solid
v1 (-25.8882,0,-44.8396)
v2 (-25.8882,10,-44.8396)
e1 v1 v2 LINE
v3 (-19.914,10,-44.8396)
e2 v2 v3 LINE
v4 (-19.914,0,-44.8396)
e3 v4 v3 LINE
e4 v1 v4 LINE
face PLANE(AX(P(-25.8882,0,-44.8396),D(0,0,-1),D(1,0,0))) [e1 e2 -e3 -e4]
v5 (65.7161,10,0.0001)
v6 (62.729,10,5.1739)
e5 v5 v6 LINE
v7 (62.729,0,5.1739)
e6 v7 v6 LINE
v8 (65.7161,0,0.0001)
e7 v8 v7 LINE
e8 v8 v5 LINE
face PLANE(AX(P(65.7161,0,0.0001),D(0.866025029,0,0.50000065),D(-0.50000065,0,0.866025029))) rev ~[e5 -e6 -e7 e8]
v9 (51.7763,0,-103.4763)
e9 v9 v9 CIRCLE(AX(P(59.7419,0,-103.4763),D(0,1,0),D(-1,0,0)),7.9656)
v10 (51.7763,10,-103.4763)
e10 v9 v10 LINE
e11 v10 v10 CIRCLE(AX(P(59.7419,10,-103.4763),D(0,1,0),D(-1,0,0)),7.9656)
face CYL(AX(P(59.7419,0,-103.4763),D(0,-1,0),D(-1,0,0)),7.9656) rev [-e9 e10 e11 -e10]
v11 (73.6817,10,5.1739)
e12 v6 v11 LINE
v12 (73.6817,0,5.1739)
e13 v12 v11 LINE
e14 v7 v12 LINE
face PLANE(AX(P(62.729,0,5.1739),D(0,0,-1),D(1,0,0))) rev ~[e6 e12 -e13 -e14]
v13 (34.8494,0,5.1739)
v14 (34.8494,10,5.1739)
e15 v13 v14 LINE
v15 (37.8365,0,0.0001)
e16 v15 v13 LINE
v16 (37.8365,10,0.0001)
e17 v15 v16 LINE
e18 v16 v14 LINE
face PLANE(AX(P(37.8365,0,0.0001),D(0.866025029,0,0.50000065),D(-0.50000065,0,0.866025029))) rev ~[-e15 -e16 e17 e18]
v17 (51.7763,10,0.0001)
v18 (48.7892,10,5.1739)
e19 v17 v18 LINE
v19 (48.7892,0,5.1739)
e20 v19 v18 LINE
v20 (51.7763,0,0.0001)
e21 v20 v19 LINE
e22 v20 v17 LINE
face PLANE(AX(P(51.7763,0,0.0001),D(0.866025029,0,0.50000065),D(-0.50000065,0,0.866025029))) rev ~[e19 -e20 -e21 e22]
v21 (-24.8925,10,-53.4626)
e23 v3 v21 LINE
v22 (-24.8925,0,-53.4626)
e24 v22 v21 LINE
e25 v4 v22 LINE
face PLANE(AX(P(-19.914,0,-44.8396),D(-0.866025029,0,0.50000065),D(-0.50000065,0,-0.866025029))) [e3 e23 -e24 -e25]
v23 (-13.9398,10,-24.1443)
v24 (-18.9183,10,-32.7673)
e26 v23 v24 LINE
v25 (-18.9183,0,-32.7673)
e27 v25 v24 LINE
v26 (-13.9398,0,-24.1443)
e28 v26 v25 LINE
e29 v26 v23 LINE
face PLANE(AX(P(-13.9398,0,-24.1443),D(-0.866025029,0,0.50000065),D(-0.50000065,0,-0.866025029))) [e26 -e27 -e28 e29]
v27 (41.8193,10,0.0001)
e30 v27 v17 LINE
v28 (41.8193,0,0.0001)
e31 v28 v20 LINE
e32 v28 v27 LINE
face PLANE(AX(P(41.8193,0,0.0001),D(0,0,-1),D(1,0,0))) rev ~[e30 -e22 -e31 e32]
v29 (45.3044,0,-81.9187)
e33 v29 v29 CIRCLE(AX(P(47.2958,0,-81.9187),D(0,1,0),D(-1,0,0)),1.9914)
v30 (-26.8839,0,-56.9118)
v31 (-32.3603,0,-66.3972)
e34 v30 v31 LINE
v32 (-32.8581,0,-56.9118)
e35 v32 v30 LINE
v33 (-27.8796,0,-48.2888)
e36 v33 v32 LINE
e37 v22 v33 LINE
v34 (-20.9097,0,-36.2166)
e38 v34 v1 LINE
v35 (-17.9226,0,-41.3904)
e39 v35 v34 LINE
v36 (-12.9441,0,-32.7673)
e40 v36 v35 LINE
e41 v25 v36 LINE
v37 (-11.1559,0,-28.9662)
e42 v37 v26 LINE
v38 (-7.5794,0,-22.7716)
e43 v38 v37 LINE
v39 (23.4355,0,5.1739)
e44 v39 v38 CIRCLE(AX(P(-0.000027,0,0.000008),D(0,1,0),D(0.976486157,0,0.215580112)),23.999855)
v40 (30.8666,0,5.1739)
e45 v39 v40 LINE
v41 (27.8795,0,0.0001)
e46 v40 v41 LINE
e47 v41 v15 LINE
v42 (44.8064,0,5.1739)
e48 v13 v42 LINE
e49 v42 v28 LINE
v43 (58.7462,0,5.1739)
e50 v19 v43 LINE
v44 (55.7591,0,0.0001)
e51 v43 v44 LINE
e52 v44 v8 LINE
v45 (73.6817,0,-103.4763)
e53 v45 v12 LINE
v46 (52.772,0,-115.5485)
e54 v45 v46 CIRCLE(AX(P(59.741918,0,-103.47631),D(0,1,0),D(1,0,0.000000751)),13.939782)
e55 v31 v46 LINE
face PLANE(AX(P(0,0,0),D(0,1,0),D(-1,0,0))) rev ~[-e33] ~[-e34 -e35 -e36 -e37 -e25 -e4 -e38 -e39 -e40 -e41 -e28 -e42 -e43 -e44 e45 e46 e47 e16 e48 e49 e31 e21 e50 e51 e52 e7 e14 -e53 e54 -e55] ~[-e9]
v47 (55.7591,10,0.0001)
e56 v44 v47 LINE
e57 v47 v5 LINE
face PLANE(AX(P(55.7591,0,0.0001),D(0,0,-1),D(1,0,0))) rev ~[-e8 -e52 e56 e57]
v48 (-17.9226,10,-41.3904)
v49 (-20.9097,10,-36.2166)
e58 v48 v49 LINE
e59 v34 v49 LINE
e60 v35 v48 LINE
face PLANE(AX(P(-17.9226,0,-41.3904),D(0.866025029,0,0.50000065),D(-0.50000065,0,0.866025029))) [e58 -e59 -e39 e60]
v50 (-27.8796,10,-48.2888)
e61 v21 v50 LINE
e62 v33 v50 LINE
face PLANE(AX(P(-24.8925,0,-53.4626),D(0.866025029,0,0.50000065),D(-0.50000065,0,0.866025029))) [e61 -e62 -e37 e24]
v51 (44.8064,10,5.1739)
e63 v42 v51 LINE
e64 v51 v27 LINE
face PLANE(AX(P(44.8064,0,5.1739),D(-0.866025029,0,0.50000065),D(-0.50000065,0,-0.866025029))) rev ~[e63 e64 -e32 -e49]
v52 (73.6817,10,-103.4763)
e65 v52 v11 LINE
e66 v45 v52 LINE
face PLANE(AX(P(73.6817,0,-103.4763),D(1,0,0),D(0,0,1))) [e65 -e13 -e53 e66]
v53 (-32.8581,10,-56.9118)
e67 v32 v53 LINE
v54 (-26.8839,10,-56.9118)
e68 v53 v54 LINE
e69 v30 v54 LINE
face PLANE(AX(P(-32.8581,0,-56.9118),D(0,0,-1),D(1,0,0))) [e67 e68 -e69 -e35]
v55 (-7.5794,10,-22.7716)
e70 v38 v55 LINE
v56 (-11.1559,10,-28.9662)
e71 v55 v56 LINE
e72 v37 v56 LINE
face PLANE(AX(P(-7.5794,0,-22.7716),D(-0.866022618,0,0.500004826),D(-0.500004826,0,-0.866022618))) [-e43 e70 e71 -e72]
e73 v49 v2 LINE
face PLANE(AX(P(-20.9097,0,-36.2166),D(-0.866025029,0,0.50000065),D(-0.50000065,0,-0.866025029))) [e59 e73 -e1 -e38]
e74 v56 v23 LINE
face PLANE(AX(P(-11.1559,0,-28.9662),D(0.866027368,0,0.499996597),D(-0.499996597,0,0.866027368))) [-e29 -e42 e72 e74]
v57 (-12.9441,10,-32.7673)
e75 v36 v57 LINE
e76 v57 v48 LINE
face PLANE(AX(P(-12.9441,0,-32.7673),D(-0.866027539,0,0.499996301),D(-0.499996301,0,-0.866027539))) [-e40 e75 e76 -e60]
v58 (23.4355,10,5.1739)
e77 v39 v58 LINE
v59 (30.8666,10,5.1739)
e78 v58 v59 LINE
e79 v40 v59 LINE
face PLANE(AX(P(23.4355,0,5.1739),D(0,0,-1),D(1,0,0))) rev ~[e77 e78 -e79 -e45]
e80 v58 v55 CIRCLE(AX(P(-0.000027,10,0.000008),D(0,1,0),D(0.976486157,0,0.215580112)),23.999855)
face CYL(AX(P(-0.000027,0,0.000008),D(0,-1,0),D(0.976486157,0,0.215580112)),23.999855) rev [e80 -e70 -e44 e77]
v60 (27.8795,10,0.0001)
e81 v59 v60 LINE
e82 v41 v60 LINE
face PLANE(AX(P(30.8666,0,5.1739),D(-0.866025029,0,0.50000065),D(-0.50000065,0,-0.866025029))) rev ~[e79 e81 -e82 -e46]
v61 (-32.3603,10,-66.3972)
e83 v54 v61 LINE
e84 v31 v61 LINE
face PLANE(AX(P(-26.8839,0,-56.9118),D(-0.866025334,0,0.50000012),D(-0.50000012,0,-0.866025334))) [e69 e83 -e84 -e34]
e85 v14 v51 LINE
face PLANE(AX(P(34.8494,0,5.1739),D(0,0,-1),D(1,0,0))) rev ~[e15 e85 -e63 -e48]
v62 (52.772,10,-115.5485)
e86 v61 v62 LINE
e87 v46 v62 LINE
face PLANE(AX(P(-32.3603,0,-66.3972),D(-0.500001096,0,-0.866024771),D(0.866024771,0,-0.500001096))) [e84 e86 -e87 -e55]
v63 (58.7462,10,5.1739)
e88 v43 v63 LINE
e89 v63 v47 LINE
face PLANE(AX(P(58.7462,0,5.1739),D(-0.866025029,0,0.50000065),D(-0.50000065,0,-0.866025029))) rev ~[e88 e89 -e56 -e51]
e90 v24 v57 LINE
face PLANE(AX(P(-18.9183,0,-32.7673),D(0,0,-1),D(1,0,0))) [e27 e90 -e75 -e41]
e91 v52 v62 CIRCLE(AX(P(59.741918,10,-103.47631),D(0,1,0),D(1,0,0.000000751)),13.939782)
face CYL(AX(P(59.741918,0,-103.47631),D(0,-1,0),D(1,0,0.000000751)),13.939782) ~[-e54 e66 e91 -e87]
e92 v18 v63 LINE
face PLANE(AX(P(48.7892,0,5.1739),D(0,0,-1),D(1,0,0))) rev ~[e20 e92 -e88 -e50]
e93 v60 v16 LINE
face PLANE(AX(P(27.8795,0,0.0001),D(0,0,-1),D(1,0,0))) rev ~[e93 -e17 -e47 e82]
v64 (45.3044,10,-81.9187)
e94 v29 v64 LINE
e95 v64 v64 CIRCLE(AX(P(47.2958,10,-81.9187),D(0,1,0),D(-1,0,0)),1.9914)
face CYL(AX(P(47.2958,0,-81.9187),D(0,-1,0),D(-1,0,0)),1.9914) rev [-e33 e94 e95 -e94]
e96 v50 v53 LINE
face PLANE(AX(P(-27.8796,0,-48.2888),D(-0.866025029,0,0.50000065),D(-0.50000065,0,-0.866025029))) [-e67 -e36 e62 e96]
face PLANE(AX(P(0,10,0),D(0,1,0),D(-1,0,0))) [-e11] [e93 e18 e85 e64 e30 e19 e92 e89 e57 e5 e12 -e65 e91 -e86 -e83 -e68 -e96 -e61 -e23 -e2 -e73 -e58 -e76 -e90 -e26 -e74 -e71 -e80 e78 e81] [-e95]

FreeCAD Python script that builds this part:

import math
import FreeCAD as App
import Part
import Sketcher
Q = App.Units.Quantity

doc = App.newDocument("Part")
body = doc.addObject("PartDesign::Body", "Body")

sketch1 = body.newObject("Sketcher::SketchObject", "Sketch")
sketch1.AttachmentSupport = (doc.getObject("XZ_Plane"), [""])
sketch1.MapMode = "FlatFace"
sketch1.addGeometry([
    Part.LineSegment(App.Vector(73.7, 5.2, 0), App.Vector(73.7, -103.5, 0)),
    Part.ArcOfCircle(Part.Circle(App.Vector(59.7, -103.5, 0), App.Vector(0, 0, 1), 13.9), math.radians(-120), math.radians(0)),
    Part.LineSegment(App.Vector(52.8, -115.5, 0), App.Vector(-32.4, -66.4, 0)),
    Part.LineSegment(App.Vector(-32.4, -66.4, 0), App.Vector(-26.9, -56.9, 0)),
    Part.LineSegment(App.Vector(-26.9, -56.9, 0), App.Vector(-32.9, -56.9, 0)),
    Part.LineSegment(App.Vector(-32.9, -56.9, 0), App.Vector(-27.9, -48.3, 0)),
    Part.LineSegment(App.Vector(-27.9, -48.3, 0), App.Vector(-24.9, -53.5, 0)),
    Part.LineSegment(App.Vector(-24.9, -53.5, 0), App.Vector(-19.9, -44.8, 0)),
    Part.LineSegment(App.Vector(-19.9, -44.8, 0), App.Vector(-25.9, -44.8, 0)),
    Part.LineSegment(App.Vector(-25.9, -44.8, 0), App.Vector(-20.9, -36.2, 0)),
    Part.LineSegment(App.Vector(-20.9, -36.2, 0), App.Vector(-17.9, -41.4, 0)),
    Part.LineSegment(App.Vector(-17.9, -41.4, 0), App.Vector(-12.9, -32.8, 0)),
    Part.LineSegment(App.Vector(-12.9, -32.8, 0), App.Vector(-18.9, -32.8, 0)),
    Part.LineSegment(App.Vector(-18.9, -32.8, 0), App.Vector(-13.9, -24.1, 0)),
    Part.LineSegment(App.Vector(-13.9, -24.1, 0), App.Vector(-11.2, -29, 0)),
    Part.LineSegment(App.Vector(-11.2, -29, 0), App.Vector(-7.6, -22.8, 0)),
    Part.ArcOfCircle(Part.Circle(App.Vector(0, 0, 0), App.Vector(0, 0, 1), 24), math.radians(-108), math.radians(12)),
    Part.LineSegment(App.Vector(23.4, 5.2, 0), App.Vector(30.9, 5.2, 0)),
    Part.LineSegment(App.Vector(30.9, 5.2, 0), App.Vector(27.9, 0, 0)),
    Part.LineSegment(App.Vector(27.9, 0, 0), App.Vector(37.8, 0, 0)),
    Part.LineSegment(App.Vector(37.8, 0, 0), App.Vector(34.8, 5.2, 0)),
    Part.LineSegment(App.Vector(34.8, 5.2, 0), App.Vector(44.8, 5.2, 0)),
    Part.LineSegment(App.Vector(44.8, 5.2, 0), App.Vector(41.8, 0, 0)),
    Part.LineSegment(App.Vector(41.8, 0, 0), App.Vector(51.8, 0, 0)),
    Part.LineSegment(App.Vector(51.8, 0, 0), App.Vector(48.8, 5.2, 0)),
    Part.LineSegment(App.Vector(48.8, 5.2, 0), App.Vector(58.7, 5.2, 0)),
    Part.LineSegment(App.Vector(58.7, 5.2, 0), App.Vector(55.8, 0, 0)),
    Part.LineSegment(App.Vector(55.8, 0, 0), App.Vector(65.7, 0, 0)),
    Part.LineSegment(App.Vector(65.7, 0, 0), App.Vector(62.7, 5.2, 0)),
    Part.LineSegment(App.Vector(62.7, 5.2, 0), App.Vector(73.7, 5.2, 0)),
    Part.Circle(App.Vector(59.7, -103.5, 0), App.Vector(0, 0, 1), 8),
    Part.Circle(App.Vector(47.3, -81.9, 0), App.Vector(0, 0, 1), 2),
], False)
sketch1.addConstraint([
    Sketcher.Constraint("Tangent", 0, 2, 1, 2),
    Sketcher.Constraint("Tangent", 1, 1, 2, 1),
    Sketcher.Constraint("Coincident", 2, 2, 3, 1),
    Sketcher.Constraint("Coincident", 3, 2, 4, 1),
    Sketcher.Constraint("Coincident", 4, 2, 5, 1),
    Sketcher.Constraint("Coincident", 5, 2, 6, 1),
    Sketcher.Constraint("Coincident", 6, 2, 7, 1),
    Sketcher.Constraint("Coincident", 7, 2, 8, 1),
    Sketcher.Constraint("Coincident", 8, 2, 9, 1),
    Sketcher.Constraint("Coincident", 9, 2, 10, 1),
    Sketcher.Constraint("Coincident", 10, 2, 11, 1),
    Sketcher.Constraint("Coincident", 11, 2, 12, 1),
    Sketcher.Constraint("Coincident", 12, 2, 13, 1),
    Sketcher.Constraint("Coincident", 13, 2, 14, 1),
    Sketcher.Constraint("Coincident", 14, 2, 15, 1),
    Sketcher.Constraint("Coincident", 15, 2, 16, 1),
    Sketcher.Constraint("Coincident", 16, 2, 17, 1),
    Sketcher.Constraint("Coincident", 17, 2, 18, 1),
    Sketcher.Constraint("Coincident", 18, 2, 19, 1),
    Sketcher.Constraint("Coincident", 19, 2, 20, 1),
    Sketcher.Constraint("Coincident", 20, 2, 21, 1),
    Sketcher.Constraint("Coincident", 21, 2, 22, 1),
    Sketcher.Constraint("Coincident", 22, 2, 23, 1),
    Sketcher.Constraint("Coincident", 23, 2, 24, 1),
    Sketcher.Constraint("Coincident", 24, 2, 25, 1),
    Sketcher.Constraint("Coincident", 25, 2, 26, 1),
    Sketcher.Constraint("Coincident", 26, 2, 27, 1),
    Sketcher.Constraint("Coincident", 27, 2, 28, 1),
    Sketcher.Constraint("Coincident", 28, 2, 29, 1),
    Sketcher.Constraint("Coincident", 29, 2, 0, 1),
    Sketcher.Constraint("Vertical", 0),
    Sketcher.Constraint("Horizontal", 4),
    Sketcher.Constraint("Horizontal", 8),
    Sketcher.Constraint("Horizontal", 12),
    Sketcher.Constraint("Horizontal", 17),
    Sketcher.Constraint("Horizontal", 19),
    Sketcher.Constraint("Horizontal", 21),
    Sketcher.Constraint("Horizontal", 23),
    Sketcher.Constraint("Horizontal", 25),
    Sketcher.Constraint("Horizontal", 27),
    Sketcher.Constraint("Horizontal", 29),
    Sketcher.Constraint("Coincident", 16, 3, -1, 1),
    Sketcher.Constraint("Coincident", 30, 3, 1, 3),
    Sketcher.Constraint("PointOnObject", 18, 2, -1),
    Sketcher.Constraint("PointOnObject", 22, 2, -1),
    Sketcher.Constraint("PointOnObject", 26, 2, -1),
    Sketcher.Constraint("Perpendicular", 2, 3),
    Sketcher.Constraint("Parallel", 3, 5),
    Sketcher.Constraint("Parallel", 5, 7),
    Sketcher.Constraint("Parallel", 7, 9),
    Sketcher.Constraint("Parallel", 6, 10),
    Sketcher.Constraint("Parallel", 9, 11),
    Sketcher.Constraint("Parallel", 11, 13),
    Sketcher.Constraint("Parallel", 10, 14),
    Sketcher.Constraint("Parallel", 13, 15),
    Sketcher.Constraint("Parallel", 15, 18),
    Sketcher.Constraint("Parallel", 14, 20),
    Sketcher.Constraint("Parallel", 18, 22),
    Sketcher.Constraint("Parallel", 20, 24),
    Sketcher.Constraint("Parallel", 22, 26),
    Sketcher.Constraint("Parallel", 24, 28),
    Sketcher.Constraint("Horizontal", 17, 2, 20, 2),
    Sketcher.Constraint("Horizontal", 21, 2, 24, 2),
    Sketcher.Constraint("Horizontal", 25, 2, 28, 2),
    Sketcher.Constraint("Equal", 4, 8),
    Sketcher.Constraint("Equal", 8, 12),
    Sketcher.Constraint("Equal", 19, 21),
    Sketcher.Constraint("Equal", 21, 23),
    Sketcher.Constraint("Equal", 23, 25),
    Sketcher.Constraint("Equal", 25, 27),
    Sketcher.Constraint("Equal", 5, 7),
    Sketcher.Constraint("Equal", 7, 9),
    Sketcher.Constraint("Equal", 6, 10),
    Sketcher.Constraint("Equal", 9, 11),
    Sketcher.Constraint("Equal", 11, 13),
    Sketcher.Constraint("Equal", 10, 18),
    Sketcher.Constraint("Equal", 18, 20),
    Sketcher.Constraint("Angle", 2, Q("150 deg")),
    Sketcher.Constraint("Diameter", 31, Q("0.1568 in")),
    Sketcher.Constraint("Radius", 1, Q("0.5488 in")),
    Sketcher.Constraint("Diameter", 30, 15.9312),
    Sketcher.Constraint("DistanceX", 19, 1, 19, 2, Q("0.392 in")),
    Sketcher.Constraint("Radius", 16, 23.9998),
    Sketcher.Constraint("DistanceX", 31, 3, 1, 3, Q("0.49 in")),
    Sketcher.Constraint("DistanceX", 2, 2, 7, 2, Q("0.49 in")),
    Sketcher.Constraint("Distance", 5, Q("0.392 in")),
    Sketcher.Constraint("DistanceX", 4, 2, 4, 1, Q("0.2352 in")),
    Sketcher.Constraint("DistanceX", 29, 1, 29, 2, Q("0.4312 in")),
    Sketcher.Constraint("DistanceY", 1, 1, 31, 3, Q("1.324 in")),
    Sketcher.Constraint("DistanceY", 31, 3, 5, 2, Q("1.324 in")),
    Sketcher.Constraint("DistanceX", 5, 2, 10, 2, Q("0.392 in")),
    Sketcher.Constraint("DistanceX", 9, 2, 14, 2, Q("0.384 in")),
    Sketcher.Constraint("Distance", 15, Q("0.2816 in")),
    Sketcher.Constraint("DistanceX", 17, 1, 17, 2, 7.431),
])
pad1 = body.newObject("PartDesign::Pad", "Pad")
pad1.Profile = sketch1
pad1.Length = Q("0.3937008 in")
pad1.Reversed = True

doc.recompute()
